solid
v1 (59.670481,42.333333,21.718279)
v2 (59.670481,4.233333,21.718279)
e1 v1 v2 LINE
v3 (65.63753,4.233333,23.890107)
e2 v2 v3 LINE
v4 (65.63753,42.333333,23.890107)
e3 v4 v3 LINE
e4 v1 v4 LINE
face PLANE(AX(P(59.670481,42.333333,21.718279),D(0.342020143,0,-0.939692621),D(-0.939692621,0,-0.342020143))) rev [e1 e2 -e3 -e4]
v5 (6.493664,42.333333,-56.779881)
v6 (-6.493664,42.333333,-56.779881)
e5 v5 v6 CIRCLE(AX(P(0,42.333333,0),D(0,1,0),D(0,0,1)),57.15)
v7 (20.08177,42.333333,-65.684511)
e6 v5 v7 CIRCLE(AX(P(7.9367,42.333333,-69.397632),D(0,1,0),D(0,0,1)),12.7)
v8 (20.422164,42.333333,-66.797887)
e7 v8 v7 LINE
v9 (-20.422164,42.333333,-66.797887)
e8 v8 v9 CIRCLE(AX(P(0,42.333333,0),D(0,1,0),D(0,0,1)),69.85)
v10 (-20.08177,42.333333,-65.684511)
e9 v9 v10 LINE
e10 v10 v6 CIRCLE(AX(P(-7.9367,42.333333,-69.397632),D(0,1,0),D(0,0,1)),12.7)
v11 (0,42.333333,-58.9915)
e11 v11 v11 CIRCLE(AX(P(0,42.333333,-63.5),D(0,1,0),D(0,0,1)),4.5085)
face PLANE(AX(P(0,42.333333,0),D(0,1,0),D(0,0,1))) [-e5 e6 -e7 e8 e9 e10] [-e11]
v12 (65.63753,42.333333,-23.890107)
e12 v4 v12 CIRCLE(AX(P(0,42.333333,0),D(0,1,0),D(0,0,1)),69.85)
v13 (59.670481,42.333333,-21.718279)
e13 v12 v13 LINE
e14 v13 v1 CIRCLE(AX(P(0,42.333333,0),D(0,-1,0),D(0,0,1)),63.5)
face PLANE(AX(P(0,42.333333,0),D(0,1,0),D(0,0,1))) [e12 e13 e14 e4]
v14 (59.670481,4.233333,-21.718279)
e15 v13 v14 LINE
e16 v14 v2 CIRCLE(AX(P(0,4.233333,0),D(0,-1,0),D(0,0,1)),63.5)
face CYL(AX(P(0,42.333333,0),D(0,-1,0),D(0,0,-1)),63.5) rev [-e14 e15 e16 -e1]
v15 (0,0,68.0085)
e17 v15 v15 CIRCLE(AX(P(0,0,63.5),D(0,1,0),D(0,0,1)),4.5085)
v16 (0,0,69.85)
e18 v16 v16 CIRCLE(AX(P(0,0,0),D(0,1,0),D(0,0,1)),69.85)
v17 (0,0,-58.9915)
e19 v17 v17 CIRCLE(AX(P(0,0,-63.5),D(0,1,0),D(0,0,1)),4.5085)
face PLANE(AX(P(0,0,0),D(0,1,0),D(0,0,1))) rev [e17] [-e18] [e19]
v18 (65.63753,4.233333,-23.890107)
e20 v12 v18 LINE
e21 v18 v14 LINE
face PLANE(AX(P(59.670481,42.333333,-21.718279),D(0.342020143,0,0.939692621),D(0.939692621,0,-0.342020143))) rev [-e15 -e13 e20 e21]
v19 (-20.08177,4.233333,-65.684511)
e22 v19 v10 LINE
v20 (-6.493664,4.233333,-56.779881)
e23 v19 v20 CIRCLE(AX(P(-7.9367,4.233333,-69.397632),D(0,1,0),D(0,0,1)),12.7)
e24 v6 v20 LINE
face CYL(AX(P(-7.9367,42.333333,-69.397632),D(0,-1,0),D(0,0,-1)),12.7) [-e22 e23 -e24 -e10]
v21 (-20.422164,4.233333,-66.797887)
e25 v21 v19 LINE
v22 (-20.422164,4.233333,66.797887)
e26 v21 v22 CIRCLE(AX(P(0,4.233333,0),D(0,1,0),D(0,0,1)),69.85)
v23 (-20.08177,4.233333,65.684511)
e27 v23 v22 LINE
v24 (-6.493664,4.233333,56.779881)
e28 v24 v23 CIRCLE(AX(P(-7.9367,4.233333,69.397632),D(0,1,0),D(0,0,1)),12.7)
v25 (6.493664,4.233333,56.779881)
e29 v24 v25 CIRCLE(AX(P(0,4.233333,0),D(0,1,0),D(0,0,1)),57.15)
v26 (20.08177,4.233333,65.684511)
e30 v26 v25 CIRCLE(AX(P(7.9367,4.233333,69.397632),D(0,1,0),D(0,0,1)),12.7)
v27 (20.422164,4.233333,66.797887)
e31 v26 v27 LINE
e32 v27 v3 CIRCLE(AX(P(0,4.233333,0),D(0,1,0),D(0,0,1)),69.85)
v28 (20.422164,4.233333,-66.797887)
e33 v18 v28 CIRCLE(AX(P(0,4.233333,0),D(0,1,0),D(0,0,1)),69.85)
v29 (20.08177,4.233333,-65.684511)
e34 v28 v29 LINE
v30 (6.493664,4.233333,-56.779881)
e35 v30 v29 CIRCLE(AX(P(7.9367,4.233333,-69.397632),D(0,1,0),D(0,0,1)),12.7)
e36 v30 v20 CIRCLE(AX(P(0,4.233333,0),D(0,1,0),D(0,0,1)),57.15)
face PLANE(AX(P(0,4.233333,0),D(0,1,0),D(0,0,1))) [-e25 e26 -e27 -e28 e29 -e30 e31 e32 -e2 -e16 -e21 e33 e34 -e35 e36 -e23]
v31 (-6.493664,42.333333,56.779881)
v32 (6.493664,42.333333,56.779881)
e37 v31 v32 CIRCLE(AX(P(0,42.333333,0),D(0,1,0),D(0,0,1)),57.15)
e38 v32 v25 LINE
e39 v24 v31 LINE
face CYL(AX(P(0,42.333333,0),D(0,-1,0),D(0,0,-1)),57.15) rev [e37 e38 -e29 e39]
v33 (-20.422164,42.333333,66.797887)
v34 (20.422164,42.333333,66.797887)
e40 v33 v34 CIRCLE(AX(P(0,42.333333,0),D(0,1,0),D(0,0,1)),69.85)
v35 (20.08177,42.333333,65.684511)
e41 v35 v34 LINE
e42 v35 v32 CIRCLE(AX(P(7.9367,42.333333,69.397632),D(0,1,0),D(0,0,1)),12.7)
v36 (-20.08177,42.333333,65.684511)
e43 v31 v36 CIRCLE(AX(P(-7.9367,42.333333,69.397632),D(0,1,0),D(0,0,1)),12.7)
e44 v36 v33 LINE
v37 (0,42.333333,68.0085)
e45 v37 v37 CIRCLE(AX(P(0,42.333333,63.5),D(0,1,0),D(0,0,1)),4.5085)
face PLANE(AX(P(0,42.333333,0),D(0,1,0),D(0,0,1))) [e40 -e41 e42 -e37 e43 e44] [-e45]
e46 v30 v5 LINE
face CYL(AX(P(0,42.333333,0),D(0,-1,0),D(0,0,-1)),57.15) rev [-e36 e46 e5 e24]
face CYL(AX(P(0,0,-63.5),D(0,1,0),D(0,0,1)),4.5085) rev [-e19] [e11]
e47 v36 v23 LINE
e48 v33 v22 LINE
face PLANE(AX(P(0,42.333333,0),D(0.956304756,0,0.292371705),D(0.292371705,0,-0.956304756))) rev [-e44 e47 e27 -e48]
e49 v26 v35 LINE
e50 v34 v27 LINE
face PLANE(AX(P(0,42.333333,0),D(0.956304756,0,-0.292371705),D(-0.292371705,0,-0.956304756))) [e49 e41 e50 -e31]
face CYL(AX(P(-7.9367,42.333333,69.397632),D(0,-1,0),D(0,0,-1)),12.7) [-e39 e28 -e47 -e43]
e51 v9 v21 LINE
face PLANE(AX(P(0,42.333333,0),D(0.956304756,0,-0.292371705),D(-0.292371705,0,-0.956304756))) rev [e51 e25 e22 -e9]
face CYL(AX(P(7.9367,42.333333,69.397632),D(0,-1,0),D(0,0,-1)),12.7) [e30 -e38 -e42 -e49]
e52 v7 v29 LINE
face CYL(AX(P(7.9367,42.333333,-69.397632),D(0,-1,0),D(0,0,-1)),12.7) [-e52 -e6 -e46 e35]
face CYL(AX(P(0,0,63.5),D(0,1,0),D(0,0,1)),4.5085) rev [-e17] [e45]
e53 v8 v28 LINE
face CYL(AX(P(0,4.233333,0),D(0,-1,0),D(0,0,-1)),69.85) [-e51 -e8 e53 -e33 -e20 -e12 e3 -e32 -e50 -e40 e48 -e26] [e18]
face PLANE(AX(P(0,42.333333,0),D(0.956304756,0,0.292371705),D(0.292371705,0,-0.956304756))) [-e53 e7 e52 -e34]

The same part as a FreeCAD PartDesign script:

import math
import FreeCAD as App
import Part
import Sketcher

V = App.Vector
Q = App.Units.Quantity


def edges_at(feature, points):
    """Names of the edges that pass closest to the given points."""
    edges = feature.Shape.Edges
    near = lambda p: min(range(len(edges)), key=lambda i: edges[i].distToShape(Part.Vertex(*p))[0])
    return sorted({f"Edge{near(p) + 1}" for p in points})

doc = App.newDocument("Part")
body = doc.addObject("PartDesign::Body", "Body")

# Sketch on XZ plane
sketch1 = body.newObject("Sketcher::SketchObject", "Sketch")
sketch1.AttachmentSupport = (doc.getObject("XZ_Plane"), [""])
sketch1.MapMode = "FlatFace"
sketch1.addGeometry(Part.Circle(V(0, 0, 0), V(0, 0, 1), 70), False)
sketch1.addConstraint(Sketcher.Constraint("Coincident", 0, 3, -1, 1))
sketch1.addConstraint(Sketcher.Constraint("Diameter", 0, Q("5.5 in")))
pad1 = body.newObject("PartDesign::Pad", "Pad")
pad1.Profile = sketch1
pad1.Length = 4.233333
pad1.Reversed = True

# Sketch on XZ plane
sketch2 = body.newObject("Sketcher::SketchObject", "Sketch001")
sketch2.AttachmentSupport = (doc.getObject("XZ_Plane"), [""])
sketch2.MapMode = "FlatFace"
sketch2.AttachmentOffset = App.Placement(V(0, 0, -4.233333), App.Rotation())
sketch2.addGeometry(Part.LineSegment(V(-17, 55, 0), V(-20, 67, 0)), False)
sketch2.addGeometry(Part.ArcOfCircle(Part.Circle(V(0, 0, 0), V(0, 0, 1), 70), math.radians(73), math.radians(107)), False)
sketch2.addGeometry(Part.LineSegment(V(20, 67, 0), V(17, 55, 0)), False)
sketch2.addGeometry(Part.ArcOfCircle(Part.Circle(V(0, 0, 0), V(0, 0, 1), 57), math.radians(73), math.radians(107)), False)
sketch2.addGeometry(Part.ArcOfCircle(Part.Circle(V(0, 0, 0), V(0, 0, 1), 70), math.radians(-107), math.radians(-73)), False)
sketch2.addGeometry(Part.LineSegment(V(-20, -67, 0), V(-17, -55, 0)), False)
sketch2.addGeometry(Part.ArcOfCircle(Part.Circle(V(0, 0, 0), V(0, 0, 1), 57), math.radians(-107), math.radians(-73)), False)
sketch2.addGeometry(Part.LineSegment(V(17, -55, 0), V(20, -67, 0)), False)
sketch2.addConstraint(Sketcher.Constraint("Coincident", 0, 2, 1, 2))
sketch2.addConstraint(Sketcher.Constraint("Coincident", 1, 1, 2, 1))
sketch2.addConstraint(Sketcher.Constraint("Coincident", 2, 2, 3, 1))
sketch2.addConstraint(Sketcher.Constraint("Coincident", 3, 2, 0, 1))
sketch2.addConstraint(Sketcher.Constraint("Coincident", 4, 1, 5, 1))
sketch2.addConstraint(Sketcher.Constraint("Coincident", 5, 2, 6, 1))
sketch2.addConstraint(Sketcher.Constraint("Coincident", 6, 2, 7, 1))
sketch2.addConstraint(Sketcher.Constraint("Coincident", 7, 2, 4, 2))
sketch2.addConstraint(Sketcher.Constraint("Coincident", 1, 3, -1, 1))
sketch2.addConstraint(Sketcher.Constraint("Coincident", 3, 3, -1, 1))
sketch2.addConstraint(Sketcher.Constraint("Coincident", 4, 3, -1, 1))
sketch2.addConstraint(Sketcher.Constraint("Coincident", 6, 3, -1, 1))
sketch2.addConstraint(Sketcher.Constraint("Equal", 1, 4))
sketch2.addConstraint(Sketcher.Constraint("Equal", 3, 6))
sketch2.addConstraint(Sketcher.Constraint("Parallel", 2, 5))
sketch2.addConstraint(Sketcher.Constraint("Parallel", 0, 7))
sketch2.addConstraint(Sketcher.Constraint("Horizontal", 0, 2, 1, 1))
sketch2.addConstraint(Sketcher.Constraint("Horizontal", 2, 2, 3, 2))
sketch2.addConstraint(Sketcher.Constraint("Horizontal", 5, 2, 6, 2))
sketch2.addConstraint(Sketcher.Constraint("Vertical", 0, 2, 4, 1))
sketch2.addConstraint(Sketcher.Constraint("Radius", 1, Q("2.7499999 in")))
sketch2.addConstraint(Sketcher.Constraint("Radius", 3, Q("2.2500002 in")))
sketch2.addConstraint(Sketcher.Constraint("Angle", 0, Q("107.000002 deg")))
sketch2.addConstraint(Sketcher.Constraint("DistanceY", 4, 3, 0, 2, 66.797889))
pad2 = body.newObject("PartDesign::Pad", "Pad001")
pad2.Profile = sketch2
pad2.Length = Q("1.5 in")
pad2.Reversed = True
doc.recompute()

fillet = body.newObject("PartDesign::Fillet", "Fillet")
fillet.Base = (pad2, edges_at(pad2, [(-16.709, 23.283, -54.653)]))
fillet.Radius = Q("0.5 in")
doc.recompute()

fillet2 = body.newObject("PartDesign::Fillet", "Fillet001")
fillet2.Base = (fillet, edges_at(fillet, [(16.709, 23.283, 54.653)]))
fillet2.Radius = Q("0.5 in")
doc.recompute()

fillet3 = body.newObject("PartDesign::Fillet", "Fillet002")
fillet3.Base = (fillet2, edges_at(fillet2, [(-16.709, 23.283, 54.653)]))
fillet3.Radius = Q("0.5 in")

# Sketch on XZ plane
sketch3 = body.newObject("Sketcher::SketchObject", "Sketch002")
sketch3.AttachmentSupport = (doc.getObject("XZ_Plane"), [""])
sketch3.MapMode = "FlatFace"
sketch3.AttachmentOffset = App.Placement(V(0, 0, -4.233333), App.Rotation())
sketch3.addGeometry(Part.LineSegment(V(66, -24, 0), V(60, -22, 0)), False)
sketch3.addGeometry(Part.ArcOfCircle(Part.Circle(V(0, 0, 0), V(0, 0, 1), 63), math.radians(-20), math.radians(20)), False)
sketch3.addGeometry(Part.LineSegment(V(60, 22, 0), V(66, 24, 0)), False)
sketch3.addGeometry(Part.ArcOfCircle(Part.Circle(V(0, 0, 0), V(0, 0, 1), 70), math.radians(-20), math.radians(20)), False)
sketch3.addConstraint(Sketcher.Constraint("Coincident", 0, 2, 1, 1))
sketch3.addConstraint(Sketcher.Constraint("Coincident", 1, 2, 2, 1))
sketch3.addConstraint(Sketcher.Constraint("Coincident", 2, 2, 3, 2))
sketch3.addConstraint(Sketcher.Constraint("Coincident", 3, 1, 0, 1))
sketch3.addConstraint(Sketcher.Constraint("Coincident", 1, 3, -1, 1))
sketch3.addConstraint(Sketcher.Constraint("Coincident", 3, 3, -1, 1))
sketch3.addConstraint(Sketcher.Constraint("Vertical", 0, 2, 1, 2))
sketch3.addConstraint(Sketcher.Constraint("Vertical", 2, 2, 3, 1))
sketch3.addConstraint(Sketcher.Constraint("Angle", 0, Q("160.000002 deg")))
sketch3.addConstraint(Sketcher.Constraint("Distance", 0, Q("0.25 in")))
sketch3.addConstraint(Sketcher.Constraint("Radius", 1, 63.499993))
sketch3.addConstraint(Sketcher.Constraint("DistanceX", -1, 1, 0, 2, 59.670481))
pad3 = body.newObject("PartDesign::Pad", "Pad002")
pad3.Profile = sketch3
pad3.Length = Q("1.5 in")
pad3.Reversed = True

# Sketch on XZ plane
sketch4 = body.newObject("Sketcher::SketchObject", "Sketch003")
sketch4.AttachmentSupport = (doc.getObject("XZ_Plane"), [""])
sketch4.MapMode = "FlatFace"
sketch4.AttachmentOffset = App.Placement(V(0, 0, -42.333333), App.Rotation())
sketch4.addGeometry(Part.Circle(V(0, -63.5, 0), V(0, 0, 1), 4.5), False)
sketch4.addGeometry(Part.Circle(V(0, 63.5, 0), V(0, 0, 1), 4.5), False)
sketch4.addConstraint(Sketcher.Constraint("Equal", 0, 1))
sketch4.addConstraint(Sketcher.Constraint("Symmetric", 0, 3, 1, 3, -1, 1))
sketch4.addConstraint(Sketcher.Constraint("PointOnObject", 0, 3, -2))
sketch4.addConstraint(Sketcher.Constraint("Diameter", 0, Q("0.355 in")))
sketch4.addConstraint(Sketcher.Constraint("DistanceY", 0, 3, 1, 3, Q("5 in")))
pocket1 = body.newObject("PartDesign::Pocket", "Pocket")
pocket1.Profile = sketch4
pocket1.Type = "ThroughAll"
pocket1.Midplane = True
doc.recompute()

fillet4 = body.newObject("PartDesign::Fillet", "Fillet003")
fillet4.Base = (pocket1, edges_at(pocket1, [(16.709, 23.283, -54.653)]))
fillet4.Radius = Q("0.5 in")

doc.recompute()
